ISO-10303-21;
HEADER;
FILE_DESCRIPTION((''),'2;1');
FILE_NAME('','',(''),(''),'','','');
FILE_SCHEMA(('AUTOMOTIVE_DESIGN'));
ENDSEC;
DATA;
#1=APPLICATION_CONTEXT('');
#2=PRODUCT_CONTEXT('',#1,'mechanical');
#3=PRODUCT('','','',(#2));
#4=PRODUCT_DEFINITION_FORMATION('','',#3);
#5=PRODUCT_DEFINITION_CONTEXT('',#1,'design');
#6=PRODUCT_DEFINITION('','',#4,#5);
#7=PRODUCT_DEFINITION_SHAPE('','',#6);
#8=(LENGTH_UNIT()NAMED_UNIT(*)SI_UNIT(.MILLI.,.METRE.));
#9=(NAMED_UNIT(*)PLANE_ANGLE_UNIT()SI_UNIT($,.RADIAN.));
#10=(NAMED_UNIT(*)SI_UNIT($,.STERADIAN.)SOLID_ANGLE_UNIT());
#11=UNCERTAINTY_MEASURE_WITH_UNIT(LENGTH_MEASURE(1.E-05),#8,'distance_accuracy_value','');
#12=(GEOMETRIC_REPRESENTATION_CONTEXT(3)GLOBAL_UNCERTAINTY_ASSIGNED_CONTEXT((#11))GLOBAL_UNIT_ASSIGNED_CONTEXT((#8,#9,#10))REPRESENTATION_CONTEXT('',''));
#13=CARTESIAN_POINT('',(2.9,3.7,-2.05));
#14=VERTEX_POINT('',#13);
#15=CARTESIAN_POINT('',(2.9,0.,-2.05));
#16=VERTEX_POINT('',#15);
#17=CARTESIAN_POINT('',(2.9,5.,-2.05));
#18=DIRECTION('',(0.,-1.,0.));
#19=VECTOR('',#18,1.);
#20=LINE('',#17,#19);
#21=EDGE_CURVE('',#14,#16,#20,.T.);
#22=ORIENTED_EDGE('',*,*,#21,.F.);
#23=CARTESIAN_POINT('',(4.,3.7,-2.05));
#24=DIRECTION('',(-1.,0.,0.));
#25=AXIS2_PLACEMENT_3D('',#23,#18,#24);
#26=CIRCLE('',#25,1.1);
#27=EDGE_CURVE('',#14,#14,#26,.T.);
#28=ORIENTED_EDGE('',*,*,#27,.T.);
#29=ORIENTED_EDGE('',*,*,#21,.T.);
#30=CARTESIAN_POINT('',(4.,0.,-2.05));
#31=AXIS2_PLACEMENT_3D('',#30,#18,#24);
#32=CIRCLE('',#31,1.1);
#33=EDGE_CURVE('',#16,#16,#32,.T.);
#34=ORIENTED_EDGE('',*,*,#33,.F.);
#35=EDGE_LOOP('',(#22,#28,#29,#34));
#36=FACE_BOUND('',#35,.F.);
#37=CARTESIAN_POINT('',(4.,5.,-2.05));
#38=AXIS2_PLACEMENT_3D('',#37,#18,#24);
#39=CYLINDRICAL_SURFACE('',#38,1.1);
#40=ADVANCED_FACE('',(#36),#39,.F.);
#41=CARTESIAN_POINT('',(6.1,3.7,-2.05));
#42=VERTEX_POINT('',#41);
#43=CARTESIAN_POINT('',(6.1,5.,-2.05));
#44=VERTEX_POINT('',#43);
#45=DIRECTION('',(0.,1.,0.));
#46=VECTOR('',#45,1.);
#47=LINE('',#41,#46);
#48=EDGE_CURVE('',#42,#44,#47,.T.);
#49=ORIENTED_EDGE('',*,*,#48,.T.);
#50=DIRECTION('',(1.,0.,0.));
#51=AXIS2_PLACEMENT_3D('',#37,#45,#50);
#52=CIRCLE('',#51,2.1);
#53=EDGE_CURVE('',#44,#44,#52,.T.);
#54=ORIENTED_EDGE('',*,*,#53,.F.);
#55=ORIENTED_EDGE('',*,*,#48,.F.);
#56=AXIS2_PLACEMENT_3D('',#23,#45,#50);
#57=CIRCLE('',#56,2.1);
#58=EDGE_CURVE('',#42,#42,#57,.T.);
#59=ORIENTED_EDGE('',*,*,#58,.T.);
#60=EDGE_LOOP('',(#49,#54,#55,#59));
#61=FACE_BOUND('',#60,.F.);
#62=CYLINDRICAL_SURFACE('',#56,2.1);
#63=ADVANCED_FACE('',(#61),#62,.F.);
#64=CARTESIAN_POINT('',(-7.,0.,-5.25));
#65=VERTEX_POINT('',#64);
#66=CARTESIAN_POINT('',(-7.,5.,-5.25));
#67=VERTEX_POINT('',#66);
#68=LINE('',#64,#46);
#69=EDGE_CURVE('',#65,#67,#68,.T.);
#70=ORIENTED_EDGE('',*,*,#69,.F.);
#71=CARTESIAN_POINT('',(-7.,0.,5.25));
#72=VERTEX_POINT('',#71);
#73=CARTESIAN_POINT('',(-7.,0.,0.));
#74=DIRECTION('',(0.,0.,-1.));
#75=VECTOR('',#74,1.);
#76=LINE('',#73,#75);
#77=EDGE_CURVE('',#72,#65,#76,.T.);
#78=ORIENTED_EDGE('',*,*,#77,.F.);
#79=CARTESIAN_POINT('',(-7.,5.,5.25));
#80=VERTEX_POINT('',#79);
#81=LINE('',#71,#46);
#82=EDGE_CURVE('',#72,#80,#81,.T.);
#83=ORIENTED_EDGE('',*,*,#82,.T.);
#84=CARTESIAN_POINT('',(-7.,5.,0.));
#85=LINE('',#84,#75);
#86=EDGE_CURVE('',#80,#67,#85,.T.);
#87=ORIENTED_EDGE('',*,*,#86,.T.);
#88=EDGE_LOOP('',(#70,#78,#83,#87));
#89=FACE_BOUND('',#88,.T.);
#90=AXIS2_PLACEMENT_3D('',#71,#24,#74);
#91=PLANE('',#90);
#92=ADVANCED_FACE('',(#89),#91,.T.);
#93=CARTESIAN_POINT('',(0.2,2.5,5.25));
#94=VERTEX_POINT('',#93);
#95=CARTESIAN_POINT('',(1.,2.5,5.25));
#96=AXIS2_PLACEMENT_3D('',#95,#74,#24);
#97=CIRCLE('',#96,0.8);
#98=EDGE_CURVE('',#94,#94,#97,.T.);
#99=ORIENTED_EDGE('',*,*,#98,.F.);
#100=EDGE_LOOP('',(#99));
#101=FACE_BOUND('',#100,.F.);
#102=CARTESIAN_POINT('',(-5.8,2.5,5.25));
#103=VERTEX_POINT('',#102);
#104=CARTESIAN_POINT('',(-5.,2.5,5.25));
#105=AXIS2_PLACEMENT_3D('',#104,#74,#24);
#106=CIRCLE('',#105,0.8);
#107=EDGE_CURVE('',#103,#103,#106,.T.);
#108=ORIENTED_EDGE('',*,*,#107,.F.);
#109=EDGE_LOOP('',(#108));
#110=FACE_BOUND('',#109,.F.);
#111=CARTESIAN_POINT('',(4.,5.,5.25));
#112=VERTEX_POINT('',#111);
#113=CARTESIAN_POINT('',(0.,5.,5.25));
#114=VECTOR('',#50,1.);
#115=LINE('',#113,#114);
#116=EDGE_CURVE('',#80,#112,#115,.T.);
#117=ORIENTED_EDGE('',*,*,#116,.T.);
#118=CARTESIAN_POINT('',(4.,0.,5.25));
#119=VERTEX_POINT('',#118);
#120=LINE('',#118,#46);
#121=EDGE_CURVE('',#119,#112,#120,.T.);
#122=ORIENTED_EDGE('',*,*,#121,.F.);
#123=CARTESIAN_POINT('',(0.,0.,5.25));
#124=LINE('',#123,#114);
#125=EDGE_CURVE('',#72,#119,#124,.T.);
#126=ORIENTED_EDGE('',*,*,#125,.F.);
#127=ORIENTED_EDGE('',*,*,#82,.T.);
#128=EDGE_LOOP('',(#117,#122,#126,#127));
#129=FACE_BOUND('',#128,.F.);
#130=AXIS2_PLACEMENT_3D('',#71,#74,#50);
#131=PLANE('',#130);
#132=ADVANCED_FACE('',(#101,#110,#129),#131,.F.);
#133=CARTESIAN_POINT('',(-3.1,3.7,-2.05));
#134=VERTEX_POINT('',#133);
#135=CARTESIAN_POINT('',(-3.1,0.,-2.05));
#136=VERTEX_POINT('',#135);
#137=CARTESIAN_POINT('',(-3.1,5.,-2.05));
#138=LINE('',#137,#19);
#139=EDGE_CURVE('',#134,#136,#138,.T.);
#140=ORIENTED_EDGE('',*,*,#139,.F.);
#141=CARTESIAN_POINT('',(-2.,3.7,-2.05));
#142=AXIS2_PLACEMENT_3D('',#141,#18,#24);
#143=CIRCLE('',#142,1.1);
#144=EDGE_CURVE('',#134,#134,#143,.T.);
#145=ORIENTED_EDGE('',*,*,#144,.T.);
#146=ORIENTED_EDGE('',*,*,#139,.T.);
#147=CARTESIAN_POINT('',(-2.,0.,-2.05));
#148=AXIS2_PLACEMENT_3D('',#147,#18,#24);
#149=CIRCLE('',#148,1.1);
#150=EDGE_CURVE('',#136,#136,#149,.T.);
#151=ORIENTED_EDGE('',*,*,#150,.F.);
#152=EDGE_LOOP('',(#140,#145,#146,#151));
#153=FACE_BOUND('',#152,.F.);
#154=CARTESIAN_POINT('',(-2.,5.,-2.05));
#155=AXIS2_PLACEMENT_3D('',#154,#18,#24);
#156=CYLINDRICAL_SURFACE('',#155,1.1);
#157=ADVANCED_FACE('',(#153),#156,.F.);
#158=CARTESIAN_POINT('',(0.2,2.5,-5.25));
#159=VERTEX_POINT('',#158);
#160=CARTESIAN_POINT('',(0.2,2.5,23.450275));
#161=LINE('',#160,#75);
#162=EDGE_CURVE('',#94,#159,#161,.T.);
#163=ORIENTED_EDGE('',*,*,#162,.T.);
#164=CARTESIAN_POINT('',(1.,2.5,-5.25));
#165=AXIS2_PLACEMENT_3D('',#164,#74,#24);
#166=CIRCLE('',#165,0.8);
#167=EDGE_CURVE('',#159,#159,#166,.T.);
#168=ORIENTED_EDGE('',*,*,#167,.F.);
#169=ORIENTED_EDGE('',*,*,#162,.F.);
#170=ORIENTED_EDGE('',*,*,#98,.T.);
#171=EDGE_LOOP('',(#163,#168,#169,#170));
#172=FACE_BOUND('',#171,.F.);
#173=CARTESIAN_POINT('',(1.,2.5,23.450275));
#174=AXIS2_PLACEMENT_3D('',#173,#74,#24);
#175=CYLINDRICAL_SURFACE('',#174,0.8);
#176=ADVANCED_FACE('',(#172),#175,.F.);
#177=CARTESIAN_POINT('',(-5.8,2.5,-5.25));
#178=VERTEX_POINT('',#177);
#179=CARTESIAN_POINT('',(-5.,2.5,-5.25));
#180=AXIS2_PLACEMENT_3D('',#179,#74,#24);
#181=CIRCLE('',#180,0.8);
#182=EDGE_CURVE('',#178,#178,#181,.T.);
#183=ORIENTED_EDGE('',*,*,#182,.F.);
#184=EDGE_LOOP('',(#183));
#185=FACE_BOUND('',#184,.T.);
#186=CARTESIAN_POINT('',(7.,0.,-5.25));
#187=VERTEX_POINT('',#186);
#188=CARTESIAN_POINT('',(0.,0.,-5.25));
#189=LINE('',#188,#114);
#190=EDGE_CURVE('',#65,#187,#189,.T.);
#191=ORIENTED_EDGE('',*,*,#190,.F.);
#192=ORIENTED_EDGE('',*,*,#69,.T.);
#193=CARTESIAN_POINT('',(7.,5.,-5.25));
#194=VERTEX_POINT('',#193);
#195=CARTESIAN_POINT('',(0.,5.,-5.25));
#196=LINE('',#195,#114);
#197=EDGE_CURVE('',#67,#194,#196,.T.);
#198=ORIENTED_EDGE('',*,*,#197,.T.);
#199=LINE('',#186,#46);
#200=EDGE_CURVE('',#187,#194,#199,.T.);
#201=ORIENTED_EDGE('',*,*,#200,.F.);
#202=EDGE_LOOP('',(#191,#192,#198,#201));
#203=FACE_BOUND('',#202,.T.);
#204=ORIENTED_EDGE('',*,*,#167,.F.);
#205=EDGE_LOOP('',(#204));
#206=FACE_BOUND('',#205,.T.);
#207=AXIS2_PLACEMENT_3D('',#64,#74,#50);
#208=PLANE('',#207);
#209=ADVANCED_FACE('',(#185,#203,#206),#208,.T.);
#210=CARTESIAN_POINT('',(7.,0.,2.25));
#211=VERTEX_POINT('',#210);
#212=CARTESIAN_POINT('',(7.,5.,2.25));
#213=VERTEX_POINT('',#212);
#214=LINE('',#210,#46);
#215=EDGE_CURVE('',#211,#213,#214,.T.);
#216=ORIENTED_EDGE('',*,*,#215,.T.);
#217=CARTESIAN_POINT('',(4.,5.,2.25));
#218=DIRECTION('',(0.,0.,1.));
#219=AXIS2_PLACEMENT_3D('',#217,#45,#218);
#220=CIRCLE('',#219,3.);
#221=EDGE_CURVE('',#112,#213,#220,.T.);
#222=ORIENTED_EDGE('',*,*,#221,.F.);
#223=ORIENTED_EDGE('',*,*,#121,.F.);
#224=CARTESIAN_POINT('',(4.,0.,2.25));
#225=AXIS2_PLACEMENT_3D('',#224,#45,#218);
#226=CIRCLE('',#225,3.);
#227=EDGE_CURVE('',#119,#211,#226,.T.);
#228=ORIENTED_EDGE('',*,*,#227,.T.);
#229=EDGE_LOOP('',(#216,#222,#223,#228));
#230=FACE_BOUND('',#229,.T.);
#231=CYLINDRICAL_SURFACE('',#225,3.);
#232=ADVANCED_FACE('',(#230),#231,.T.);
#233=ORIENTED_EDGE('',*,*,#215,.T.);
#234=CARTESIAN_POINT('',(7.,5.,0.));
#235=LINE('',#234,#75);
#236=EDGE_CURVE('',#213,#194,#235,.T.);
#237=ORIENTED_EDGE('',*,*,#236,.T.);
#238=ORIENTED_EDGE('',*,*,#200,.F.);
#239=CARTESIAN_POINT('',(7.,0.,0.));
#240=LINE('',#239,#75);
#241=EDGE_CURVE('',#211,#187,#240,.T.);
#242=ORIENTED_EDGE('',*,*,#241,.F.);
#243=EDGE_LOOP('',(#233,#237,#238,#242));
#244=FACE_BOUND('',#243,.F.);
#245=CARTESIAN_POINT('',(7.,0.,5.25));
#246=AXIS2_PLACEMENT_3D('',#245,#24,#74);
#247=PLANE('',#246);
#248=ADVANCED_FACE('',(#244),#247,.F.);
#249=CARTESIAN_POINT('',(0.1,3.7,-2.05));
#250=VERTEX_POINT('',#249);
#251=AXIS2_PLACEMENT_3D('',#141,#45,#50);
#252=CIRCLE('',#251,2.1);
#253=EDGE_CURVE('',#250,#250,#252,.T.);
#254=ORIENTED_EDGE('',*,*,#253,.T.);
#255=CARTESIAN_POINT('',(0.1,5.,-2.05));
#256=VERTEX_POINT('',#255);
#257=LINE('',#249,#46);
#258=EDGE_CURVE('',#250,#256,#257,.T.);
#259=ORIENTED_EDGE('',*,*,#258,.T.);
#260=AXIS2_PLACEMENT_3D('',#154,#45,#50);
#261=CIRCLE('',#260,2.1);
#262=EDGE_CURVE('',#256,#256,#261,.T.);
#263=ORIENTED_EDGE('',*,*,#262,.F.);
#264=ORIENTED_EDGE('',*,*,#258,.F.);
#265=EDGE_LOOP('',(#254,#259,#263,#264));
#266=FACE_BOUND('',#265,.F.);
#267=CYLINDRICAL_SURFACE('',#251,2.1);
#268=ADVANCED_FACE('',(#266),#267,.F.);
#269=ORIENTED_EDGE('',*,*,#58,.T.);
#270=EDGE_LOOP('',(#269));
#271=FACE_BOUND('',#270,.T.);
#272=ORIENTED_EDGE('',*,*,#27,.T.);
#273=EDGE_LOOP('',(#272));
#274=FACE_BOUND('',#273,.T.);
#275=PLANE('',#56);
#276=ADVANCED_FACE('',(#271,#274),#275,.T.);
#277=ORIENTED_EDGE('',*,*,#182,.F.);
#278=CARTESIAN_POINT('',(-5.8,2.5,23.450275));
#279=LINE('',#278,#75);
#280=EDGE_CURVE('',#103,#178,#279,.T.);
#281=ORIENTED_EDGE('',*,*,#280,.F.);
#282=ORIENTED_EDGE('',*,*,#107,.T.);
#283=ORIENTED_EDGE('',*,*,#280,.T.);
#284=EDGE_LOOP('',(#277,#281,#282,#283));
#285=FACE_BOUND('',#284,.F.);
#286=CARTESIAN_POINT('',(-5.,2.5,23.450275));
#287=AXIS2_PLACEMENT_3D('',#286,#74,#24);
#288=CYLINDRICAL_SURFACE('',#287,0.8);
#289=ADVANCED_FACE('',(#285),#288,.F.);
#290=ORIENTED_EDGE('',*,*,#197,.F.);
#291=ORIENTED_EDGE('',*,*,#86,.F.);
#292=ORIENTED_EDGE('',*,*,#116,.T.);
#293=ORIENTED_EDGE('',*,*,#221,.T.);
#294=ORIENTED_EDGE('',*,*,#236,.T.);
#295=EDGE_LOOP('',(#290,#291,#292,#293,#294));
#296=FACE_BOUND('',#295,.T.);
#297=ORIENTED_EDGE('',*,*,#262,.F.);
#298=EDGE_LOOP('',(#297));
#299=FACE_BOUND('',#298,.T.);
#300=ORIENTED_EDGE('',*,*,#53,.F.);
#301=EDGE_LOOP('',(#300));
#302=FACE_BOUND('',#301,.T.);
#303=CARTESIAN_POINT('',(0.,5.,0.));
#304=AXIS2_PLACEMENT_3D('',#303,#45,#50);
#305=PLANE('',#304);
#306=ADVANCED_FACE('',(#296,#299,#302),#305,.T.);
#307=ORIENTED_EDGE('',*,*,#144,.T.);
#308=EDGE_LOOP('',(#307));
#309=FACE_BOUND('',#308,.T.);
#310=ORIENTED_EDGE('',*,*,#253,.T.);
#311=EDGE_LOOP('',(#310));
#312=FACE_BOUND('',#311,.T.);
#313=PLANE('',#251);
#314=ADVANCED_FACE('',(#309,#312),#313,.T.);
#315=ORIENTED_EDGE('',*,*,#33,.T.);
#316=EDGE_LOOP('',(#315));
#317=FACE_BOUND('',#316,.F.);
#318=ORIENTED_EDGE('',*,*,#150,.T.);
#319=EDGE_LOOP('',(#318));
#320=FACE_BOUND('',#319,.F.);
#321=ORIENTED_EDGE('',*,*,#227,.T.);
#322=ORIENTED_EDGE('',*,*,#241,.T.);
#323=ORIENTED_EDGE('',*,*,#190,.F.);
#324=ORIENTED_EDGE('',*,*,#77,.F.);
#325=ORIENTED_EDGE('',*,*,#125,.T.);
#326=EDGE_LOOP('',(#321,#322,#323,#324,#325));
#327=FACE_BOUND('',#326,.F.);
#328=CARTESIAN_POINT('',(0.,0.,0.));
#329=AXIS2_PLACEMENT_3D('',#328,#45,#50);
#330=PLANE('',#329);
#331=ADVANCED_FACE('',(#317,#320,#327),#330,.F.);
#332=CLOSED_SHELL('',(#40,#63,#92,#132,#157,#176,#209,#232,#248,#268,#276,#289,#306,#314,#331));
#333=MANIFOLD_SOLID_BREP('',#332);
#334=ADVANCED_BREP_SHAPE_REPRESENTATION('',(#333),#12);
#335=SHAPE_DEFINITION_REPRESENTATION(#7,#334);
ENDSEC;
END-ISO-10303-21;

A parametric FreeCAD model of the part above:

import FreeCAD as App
import Part
import Sketcher
from FreeCAD import Vector
Q = App.Units.Quantity


def edges_at(feature, points):
    """Names of the edges that pass closest to the given points."""
    edges = feature.Shape.Edges
    near = lambda p: min(range(len(edges)), key=lambda i: edges[i].distToShape(Part.Vertex(*p))[0])
    return sorted({f"Edge{near(p) + 1}" for p in points})


def add_polygon(sketch, points):
    """Adds a closed chain of lines whose ends are joined by coincident constraints."""
    first, n = sketch.GeometryCount, len(points)
    for a, b in zip(points, points[1:] + points[:1]):
        sketch.addGeometry(Part.LineSegment(App.Vector(*a, 0), App.Vector(*b, 0)), False)
    for i in range(n):
        sketch.addConstraint(Sketcher.Constraint("Coincident", first + i, 2, first + (i + 1) % n, 1))

doc = App.newDocument("Part")
body = doc.addObject("PartDesign::Body", "Body")

# Sketch on XZ plane
sketch1 = body.newObject("Sketcher::SketchObject", "Sketch")
sketch1.AttachmentSupport = (doc.getObject("XZ_Plane"), [""])
sketch1.MapMode = "FlatFace"
add_polygon(sketch1, [(-7, -5.25), (-7, 5.25), (7, 5.25), (7, -5.25)])  # lines 0-3
sketch1.addConstraint(Sketcher.Constraint("Vertical", 0))
sketch1.addConstraint(Sketcher.Constraint("Horizontal", 1))
sketch1.addConstraint(Sketcher.Constraint("Vertical", 2))
sketch1.addConstraint(Sketcher.Constraint("Horizontal", 3))
sketch1.addConstraint(Sketcher.Constraint("Symmetric", 0, 2, 2, 2, -1, 1))
sketch1.addConstraint(Sketcher.Constraint("DistanceX", 1, 1, 1, 2, Q("14 mm")))
sketch1.addConstraint(Sketcher.Constraint("DistanceY", 0, 1, 0, 2, Q("10.5 mm")))
pad1 = body.newObject("PartDesign::Pad", "Pad")
pad1.Profile = sketch1
pad1.Length = 5
pad1.Reversed = True

# Sketch on XZ plane
sketch2 = body.newObject("Sketcher::SketchObject", "Sketch001")
sketch2.AttachmentSupport = (doc.getObject("XZ_Plane"), [""])
sketch2.MapMode = "FlatFace"
sketch2.AttachmentOffset = App.Placement(Vector(0, 0, -5), App.Rotation())
sketch2.addGeometry(Part.Circle(Vector(-2, -2.05, 0), Vector(0, 0, 1), 1.1), False)
sketch2.addGeometry(Part.Circle(Vector(4, -2.05, 0), Vector(0, 0, 1), 1.1), False)
sketch2.addConstraint(Sketcher.Constraint("Equal", 0, 1))
sketch2.addConstraint(Sketcher.Constraint("Horizontal", 0, 3, 1, 3))
sketch2.addConstraint(Sketcher.Constraint("Diameter", 0, Q("2.2 mm")))
sketch2.addConstraint(Sketcher.Constraint("DistanceX", 0, 3, -1, 1, Q("2 mm")))
sketch2.addConstraint(Sketcher.Constraint("DistanceX", -1, 1, 1, 3, Q("4 mm")))
sketch2.addConstraint(Sketcher.Constraint("DistanceY", 0, 3, -1, 1, Q("2.05 mm")))
doc.recompute()
hole = body.newObject("PartDesign::Hole", "Hole")
hole.Profile = sketch2
hole.ThreadType = "None"
hole.Diameter = 2.2
hole.DepthType = "ThroughAll"
hole.HoleCutType = "Counterbore"
hole.HoleCutDiameter = 4.2
hole.HoleCutDepth = 1.3
hole.Reversed = True
doc.recompute()

fillet = body.newObject("PartDesign::Fillet", "Fillet")
fillet.Base = (hole, edges_at(hole, [(7, 2.5, 5.25)]))
fillet.Radius = 3

# Sketch on XY plane
sketch3 = body.newObject("Sketcher::SketchObject", "Sketch002")
sketch3.AttachmentSupport = (doc.getObject("XY_Plane"), [""])
sketch3.MapMode = "FlatFace"
sketch3.AttachmentOffset = App.Placement(Vector(0, 0, 5.25), App.Rotation())
sketch3.addGeometry(Part.Circle(Vector(-5, 2.5, 0), Vector(0, 0, 1), 0.8), False)
sketch3.addGeometry(Part.Circle(Vector(1, 2.5, 0), Vector(0, 0, 1), 0.8), False)
sketch3.addConstraint(Sketcher.Constraint("Equal", 0, 1))
sketch3.addConstraint(Sketcher.Constraint("Horizontal", 0, 3, 1, 3))
sketch3.addConstraint(Sketcher.Constraint("Diameter", 0, Q("1.6 mm")))
sketch3.addConstraint(Sketcher.Constraint("DistanceX", 0, 3, -1, 1, Q("5 mm")))
sketch3.addConstraint(Sketcher.Constraint("DistanceX", -1, 1, 1, 3, Q("1 mm")))
sketch3.addConstraint(Sketcher.Constraint("DistanceY", -1, 1, 0, 3, Q("2.5 mm")))
doc.recompute()
hole2 = body.newObject("PartDesign::Hole", "Hole001")
hole2.Profile = sketch3
hole2.ThreadType = "None"
hole2.Diameter = 1.6
hole2.DepthType = "ThroughAll"

doc.recompute()
